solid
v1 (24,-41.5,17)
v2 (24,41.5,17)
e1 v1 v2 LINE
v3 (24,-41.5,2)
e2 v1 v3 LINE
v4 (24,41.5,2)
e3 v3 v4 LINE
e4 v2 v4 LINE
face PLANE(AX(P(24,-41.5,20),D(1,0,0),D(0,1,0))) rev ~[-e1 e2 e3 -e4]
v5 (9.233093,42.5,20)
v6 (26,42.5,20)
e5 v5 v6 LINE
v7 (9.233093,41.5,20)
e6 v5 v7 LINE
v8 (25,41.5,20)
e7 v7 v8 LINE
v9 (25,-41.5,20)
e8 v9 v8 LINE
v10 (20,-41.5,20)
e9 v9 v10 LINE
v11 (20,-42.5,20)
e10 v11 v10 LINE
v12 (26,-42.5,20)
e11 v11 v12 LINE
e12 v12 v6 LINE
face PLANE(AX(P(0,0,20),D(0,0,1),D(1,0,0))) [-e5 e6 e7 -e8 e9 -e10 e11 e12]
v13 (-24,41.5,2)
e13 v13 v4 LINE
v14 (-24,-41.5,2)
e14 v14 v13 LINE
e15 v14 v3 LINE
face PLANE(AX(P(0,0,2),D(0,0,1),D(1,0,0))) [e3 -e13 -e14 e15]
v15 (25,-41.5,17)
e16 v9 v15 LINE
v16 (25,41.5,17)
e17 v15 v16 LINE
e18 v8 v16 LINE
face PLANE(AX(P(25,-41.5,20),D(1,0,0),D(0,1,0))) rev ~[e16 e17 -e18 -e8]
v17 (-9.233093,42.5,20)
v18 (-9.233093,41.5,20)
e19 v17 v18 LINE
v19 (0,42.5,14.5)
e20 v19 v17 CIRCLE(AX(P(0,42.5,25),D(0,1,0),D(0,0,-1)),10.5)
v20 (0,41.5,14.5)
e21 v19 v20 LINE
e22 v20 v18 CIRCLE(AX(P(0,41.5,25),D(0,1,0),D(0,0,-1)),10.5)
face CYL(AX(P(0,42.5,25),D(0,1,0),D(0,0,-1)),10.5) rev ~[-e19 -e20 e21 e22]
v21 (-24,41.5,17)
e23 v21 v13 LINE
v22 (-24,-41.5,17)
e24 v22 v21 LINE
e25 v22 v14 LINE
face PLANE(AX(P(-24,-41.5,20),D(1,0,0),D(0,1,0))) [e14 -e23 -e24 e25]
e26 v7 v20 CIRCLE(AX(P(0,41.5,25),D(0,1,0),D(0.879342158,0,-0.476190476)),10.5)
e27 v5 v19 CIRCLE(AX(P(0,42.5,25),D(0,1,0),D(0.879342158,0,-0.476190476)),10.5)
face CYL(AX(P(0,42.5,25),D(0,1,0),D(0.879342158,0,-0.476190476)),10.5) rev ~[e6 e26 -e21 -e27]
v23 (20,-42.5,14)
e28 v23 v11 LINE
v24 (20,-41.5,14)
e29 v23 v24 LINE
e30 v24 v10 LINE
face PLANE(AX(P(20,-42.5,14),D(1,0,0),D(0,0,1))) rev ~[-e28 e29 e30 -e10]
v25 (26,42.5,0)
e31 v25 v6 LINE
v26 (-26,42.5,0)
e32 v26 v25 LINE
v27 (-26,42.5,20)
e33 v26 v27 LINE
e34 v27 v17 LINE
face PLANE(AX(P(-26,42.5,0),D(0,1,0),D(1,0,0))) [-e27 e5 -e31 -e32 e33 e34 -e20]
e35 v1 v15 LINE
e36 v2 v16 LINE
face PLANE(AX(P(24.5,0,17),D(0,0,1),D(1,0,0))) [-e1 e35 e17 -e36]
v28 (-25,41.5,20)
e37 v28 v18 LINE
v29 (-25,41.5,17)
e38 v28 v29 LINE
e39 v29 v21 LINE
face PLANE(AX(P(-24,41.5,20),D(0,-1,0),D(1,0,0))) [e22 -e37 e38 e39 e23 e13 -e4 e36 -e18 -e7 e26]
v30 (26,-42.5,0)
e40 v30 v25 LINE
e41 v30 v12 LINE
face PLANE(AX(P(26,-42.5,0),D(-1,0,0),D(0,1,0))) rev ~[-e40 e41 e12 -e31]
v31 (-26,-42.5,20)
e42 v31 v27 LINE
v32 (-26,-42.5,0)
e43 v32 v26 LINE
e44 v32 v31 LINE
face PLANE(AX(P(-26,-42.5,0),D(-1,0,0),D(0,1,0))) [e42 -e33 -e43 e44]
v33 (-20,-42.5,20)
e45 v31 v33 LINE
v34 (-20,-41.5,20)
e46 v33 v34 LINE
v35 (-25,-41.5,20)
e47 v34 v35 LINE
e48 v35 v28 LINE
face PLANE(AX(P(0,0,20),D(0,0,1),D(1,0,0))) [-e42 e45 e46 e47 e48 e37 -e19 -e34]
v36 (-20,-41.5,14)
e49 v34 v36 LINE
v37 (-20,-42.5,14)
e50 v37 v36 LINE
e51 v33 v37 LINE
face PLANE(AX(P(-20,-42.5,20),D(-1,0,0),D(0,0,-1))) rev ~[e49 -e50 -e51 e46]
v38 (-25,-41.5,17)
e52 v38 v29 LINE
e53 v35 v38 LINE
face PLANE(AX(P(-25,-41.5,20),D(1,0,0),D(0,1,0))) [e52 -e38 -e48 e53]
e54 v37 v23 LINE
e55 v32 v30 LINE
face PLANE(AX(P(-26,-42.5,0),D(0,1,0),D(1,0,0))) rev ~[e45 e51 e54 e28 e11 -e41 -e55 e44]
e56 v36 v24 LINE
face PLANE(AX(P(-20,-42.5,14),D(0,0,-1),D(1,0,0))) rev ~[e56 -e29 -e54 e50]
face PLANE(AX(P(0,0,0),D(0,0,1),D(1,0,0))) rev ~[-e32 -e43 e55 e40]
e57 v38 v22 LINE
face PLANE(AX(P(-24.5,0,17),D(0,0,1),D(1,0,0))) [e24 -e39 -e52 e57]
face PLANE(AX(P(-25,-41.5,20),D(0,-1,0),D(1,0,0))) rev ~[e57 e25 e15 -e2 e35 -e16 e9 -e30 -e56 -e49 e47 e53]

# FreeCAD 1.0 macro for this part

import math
import FreeCAD as App
import Part
import Sketcher
from FreeCAD import Vector


def add_polygon(sketch, points):
    """Adds a closed chain of lines whose ends are joined by coincident constraints."""
    first, n = sketch.GeometryCount, len(points)
    for a, b in zip(points, points[1:] + points[:1]):
        sketch.addGeometry(Part.LineSegment(App.Vector(*a, 0), App.Vector(*b, 0)), False)
    for i in range(n):
        sketch.addConstraint(Sketcher.Constraint("Coincident", first + i, 2, first + (i + 1) % n, 1))

doc = App.newDocument("Part")
params = doc.addObject("Spreadsheet::Sheet", "Params")
for row, (alias, value) in enumerate([
    ("sketch1_width", "52 mm"),
    ("sketch1_height", "85 mm"),
    ("pad1_length", "20 mm"),
    ("sketch2_width", "48 mm"),
    ("sketch2_height", "83 mm"),
    ("pocket1_length", "18 mm"),
    ("sketch3_width", "40 mm"),
    ("sketch3_height", "6 mm"),
    ("pocket2_length", "5 mm"),
    ("sketch4_radius", "10.5 mm"),
    ("pocket3_length", "5 mm"),
    ("sketch5_width", "1 mm"),
    ("sketch5_height", "83 mm"),
    ("pocket4_length", "3 mm"),
    ("sketch6_width", "1 mm"),
    ("sketch6_height", "83 mm"),
    ("pocket5_length", "3 mm"),
], start=1):
    params.set(f"A{row}", alias)
    params.set(f"B{row}", "=" + value)
    params.setAlias(f"B{row}", alias)

body = doc.addObject("PartDesign::Body", "Body")

sketch1 = body.newObject("Sketcher::SketchObject", "Sketch")
sketch1.AttachmentSupport = (doc.getObject("XY_Plane"), [""])
sketch1.MapMode = "FlatFace"
add_polygon(sketch1, [(-26, 42), (-26, -42), (26, -42), (26, 42)])
sketch1.addConstraint([
    Sketcher.Constraint("Vertical", 0),
    Sketcher.Constraint("Horizontal", 1),
    Sketcher.Constraint("Vertical", 2),
    Sketcher.Constraint("Horizontal", 3),
    Sketcher.Constraint("Symmetric", 0, 2, 2, 2, -1, 1),
    Sketcher.Constraint("DistanceX", 1, 1, 1, 2, 52.0),
    Sketcher.Constraint("DistanceY", 0, 2, 0, 1, 85.0),
])
sketch1.setExpression("Constraints[9]", "Params.sketch1_width")
sketch1.setExpression("Constraints[10]", "Params.sketch1_height")
pad1 = body.newObject("PartDesign::Pad", "Pad")
pad1.Profile = sketch1
pad1.setExpression("Length", "Params.pad1_length")

sketch2 = body.newObject("Sketcher::SketchObject", "Sketch001")
sketch2.AttachmentSupport = (doc.getObject("XY_Plane"), [""])
sketch2.MapMode = "FlatFace"
sketch2.AttachmentOffset = App.Placement(Vector(0, 0, 20), App.Rotation())
add_polygon(sketch2, [(-24, 42), (-24, -42), (24, -42), (24, 42)])
sketch2.addConstraint([
    Sketcher.Constraint("Vertical", 0),
    Sketcher.Constraint("Horizontal", 1),
    Sketcher.Constraint("Vertical", 2),
    Sketcher.Constraint("Horizontal", 3),
    Sketcher.Constraint("Symmetric", 0, 2, 2, 2, -1, 1),
    Sketcher.Constraint("DistanceX", 1, 1, 1, 2, 48.0),
    Sketcher.Constraint("DistanceY", 0, 2, 0, 1, 83.0),
])
sketch2.setExpression("Constraints[9]", "Params.sketch2_width")
sketch2.setExpression("Constraints[10]", "Params.sketch2_height")
pocket1 = body.newObject("PartDesign::Pocket", "Pocket")
pocket1.Profile = sketch2
pocket1.setExpression("Length", "Params.pocket1_length")

sketch3 = body.newObject("Sketcher::SketchObject", "Sketch002")
sketch3.AttachmentSupport = (doc.getObject("XZ_Plane"), [""])
sketch3.MapMode = "FlatFace"
sketch3.AttachmentOffset = App.Placement(Vector(0, 0, 42.5), App.Rotation())
add_polygon(sketch3, [(-20, 14), (20, 14), (20, 20), (-20, 20)])
sketch3.addConstraint([
    Sketcher.Constraint("Horizontal", 0),
    Sketcher.Constraint("Vertical", 1),
    Sketcher.Constraint("Horizontal", 2),
    Sketcher.Constraint("Vertical", 3),
    Sketcher.Constraint("DistanceX", 0, 1, 0, 2, 40.0),
    Sketcher.Constraint("DistanceY", 1, 1, 1, 2, 6.0),
    Sketcher.Constraint("DistanceX", -1, 1, 0, 2, 20.0),
    Sketcher.Constraint("DistanceY", -1, 1, 0, 2, 14.0),
])
sketch3.setExpression("Constraints[8]", "Params.sketch3_width")
sketch3.setExpression("Constraints[9]", "Params.sketch3_height")
pocket2 = body.newObject("PartDesign::Pocket", "Pocket001")
pocket2.Profile = sketch3
pocket2.setExpression("Length", "Params.pocket2_length")

sketch4 = body.newObject("Sketcher::SketchObject", "Sketch003")
sketch4.AttachmentSupport = (doc.getObject("XZ_Plane"), [""])
sketch4.MapMode = "FlatFace"
sketch4.AttachmentOffset = App.Placement(Vector(0, 0, -42.5), App.Rotation())
sketch4.addGeometry([
    Part.ArcOfCircle(Part.Circle(Vector(0, 25, 0), Vector(0, 0, 1), 10), math.radians(-90), math.radians(-28)),
    Part.ArcOfCircle(Part.Circle(Vector(0, 25, 0), Vector(0, 0, 1), 10), math.radians(-152), math.radians(-90)),
    Part.LineSegment(Vector(-9, 20, 0), Vector(9, 20, 0)),
], False)
sketch4.addConstraint([
    Sketcher.Constraint("Tangent", 0, 1, 1, 2),
    Sketcher.Constraint("Coincident", 1, 1, 2, 1),
    Sketcher.Constraint("Coincident", 2, 2, 0, 2),
    Sketcher.Constraint("Horizontal", 2),
    Sketcher.Constraint("Equal", 0, 1),
    Sketcher.Constraint("PointOnObject", 0, 3, -2),
    Sketcher.Constraint("PointOnObject", 0, 1, -2),
    Sketcher.Constraint("Radius", 0, 10.5),
    Sketcher.Constraint("DistanceY", -1, 1, 0, 3, 25.0),
    Sketcher.Constraint("DistanceY", -1, 1, 1, 1, 20.0),
])
sketch4.setExpression("Constraints[7]", "Params.sketch4_radius")
pocket3 = body.newObject("PartDesign::Pocket", "Pocket002")
pocket3.Profile = sketch4
pocket3.setExpression("Length", "Params.pocket3_length")
pocket3.Reversed = True

sketch5 = body.newObject("Sketcher::SketchObject", "Sketch004")
sketch5.AttachmentSupport = (doc.getObject("XY_Plane"), [""])
sketch5.MapMode = "FlatFace"
sketch5.AttachmentOffset = App.Placement(Vector(0, 0, 20), App.Rotation())
add_polygon(sketch5, [(24, 41.5), (24, -41.5), (25, -41.5), (25, 41.5)])
sketch5.addConstraint([
    Sketcher.Constraint("Vertical", 0),
    Sketcher.Constraint("Horizontal", 1),
    Sketcher.Constraint("Vertical", 2),
    Sketcher.Constraint("Horizontal", 3),
    Sketcher.Constraint("DistanceX", 1, 1, 1, 2, 1.0),
    Sketcher.Constraint("DistanceY", 0, 2, 0, 1, 83.0),
    Sketcher.Constraint("DistanceX", -1, 1, 0, 2, 24.0),
    Sketcher.Constraint("DistanceY", 0, 2, -1, 1, 41.5),
])
sketch5.setExpression("Constraints[8]", "Params.sketch5_width")
sketch5.setExpression("Constraints[9]", "Params.sketch5_height")
pocket4 = body.newObject("PartDesign::Pocket", "Pocket003")
pocket4.Profile = sketch5
pocket4.setExpression("Length", "Params.pocket4_length")

sketch6 = body.newObject("Sketcher::SketchObject", "Sketch005")
sketch6.AttachmentSupport = (doc.getObject("XY_Plane"), [""])
sketch6.MapMode = "FlatFace"
sketch6.AttachmentOffset = App.Placement(Vector(0, 0, 20), App.Rotation())
add_polygon(sketch6, [(-25, 41.5), (-25, -41.5), (-24, -41.5), (-24, 41.5)])
sketch6.addConstraint([
    Sketcher.Constraint("Vertical", 0),
    Sketcher.Constraint("Horizontal", 1),
    Sketcher.Constraint("Vertical", 2),
    Sketcher.Constraint("Horizontal", 3),
    Sketcher.Constraint("DistanceX", 1, 1, 1, 2, 1.0),
    Sketcher.Constraint("DistanceY", 0, 2, 0, 1, 83.0),
    Sketcher.Constraint("DistanceX", 0, 2, -1, 1, 25.0),
    Sketcher.Constraint("DistanceY", 0, 2, -1, 1, 41.5),
])
sketch6.setExpression("Constraints[8]", "Params.sketch6_width")
sketch6.setExpression("Constraints[9]", "Params.sketch6_height")
pocket5 = body.newObject("PartDesign::Pocket", "Pocket004")
pocket5.Profile = sketch6
pocket5.setExpression("Length", "Params.pocket5_length")

doc.recompute()
